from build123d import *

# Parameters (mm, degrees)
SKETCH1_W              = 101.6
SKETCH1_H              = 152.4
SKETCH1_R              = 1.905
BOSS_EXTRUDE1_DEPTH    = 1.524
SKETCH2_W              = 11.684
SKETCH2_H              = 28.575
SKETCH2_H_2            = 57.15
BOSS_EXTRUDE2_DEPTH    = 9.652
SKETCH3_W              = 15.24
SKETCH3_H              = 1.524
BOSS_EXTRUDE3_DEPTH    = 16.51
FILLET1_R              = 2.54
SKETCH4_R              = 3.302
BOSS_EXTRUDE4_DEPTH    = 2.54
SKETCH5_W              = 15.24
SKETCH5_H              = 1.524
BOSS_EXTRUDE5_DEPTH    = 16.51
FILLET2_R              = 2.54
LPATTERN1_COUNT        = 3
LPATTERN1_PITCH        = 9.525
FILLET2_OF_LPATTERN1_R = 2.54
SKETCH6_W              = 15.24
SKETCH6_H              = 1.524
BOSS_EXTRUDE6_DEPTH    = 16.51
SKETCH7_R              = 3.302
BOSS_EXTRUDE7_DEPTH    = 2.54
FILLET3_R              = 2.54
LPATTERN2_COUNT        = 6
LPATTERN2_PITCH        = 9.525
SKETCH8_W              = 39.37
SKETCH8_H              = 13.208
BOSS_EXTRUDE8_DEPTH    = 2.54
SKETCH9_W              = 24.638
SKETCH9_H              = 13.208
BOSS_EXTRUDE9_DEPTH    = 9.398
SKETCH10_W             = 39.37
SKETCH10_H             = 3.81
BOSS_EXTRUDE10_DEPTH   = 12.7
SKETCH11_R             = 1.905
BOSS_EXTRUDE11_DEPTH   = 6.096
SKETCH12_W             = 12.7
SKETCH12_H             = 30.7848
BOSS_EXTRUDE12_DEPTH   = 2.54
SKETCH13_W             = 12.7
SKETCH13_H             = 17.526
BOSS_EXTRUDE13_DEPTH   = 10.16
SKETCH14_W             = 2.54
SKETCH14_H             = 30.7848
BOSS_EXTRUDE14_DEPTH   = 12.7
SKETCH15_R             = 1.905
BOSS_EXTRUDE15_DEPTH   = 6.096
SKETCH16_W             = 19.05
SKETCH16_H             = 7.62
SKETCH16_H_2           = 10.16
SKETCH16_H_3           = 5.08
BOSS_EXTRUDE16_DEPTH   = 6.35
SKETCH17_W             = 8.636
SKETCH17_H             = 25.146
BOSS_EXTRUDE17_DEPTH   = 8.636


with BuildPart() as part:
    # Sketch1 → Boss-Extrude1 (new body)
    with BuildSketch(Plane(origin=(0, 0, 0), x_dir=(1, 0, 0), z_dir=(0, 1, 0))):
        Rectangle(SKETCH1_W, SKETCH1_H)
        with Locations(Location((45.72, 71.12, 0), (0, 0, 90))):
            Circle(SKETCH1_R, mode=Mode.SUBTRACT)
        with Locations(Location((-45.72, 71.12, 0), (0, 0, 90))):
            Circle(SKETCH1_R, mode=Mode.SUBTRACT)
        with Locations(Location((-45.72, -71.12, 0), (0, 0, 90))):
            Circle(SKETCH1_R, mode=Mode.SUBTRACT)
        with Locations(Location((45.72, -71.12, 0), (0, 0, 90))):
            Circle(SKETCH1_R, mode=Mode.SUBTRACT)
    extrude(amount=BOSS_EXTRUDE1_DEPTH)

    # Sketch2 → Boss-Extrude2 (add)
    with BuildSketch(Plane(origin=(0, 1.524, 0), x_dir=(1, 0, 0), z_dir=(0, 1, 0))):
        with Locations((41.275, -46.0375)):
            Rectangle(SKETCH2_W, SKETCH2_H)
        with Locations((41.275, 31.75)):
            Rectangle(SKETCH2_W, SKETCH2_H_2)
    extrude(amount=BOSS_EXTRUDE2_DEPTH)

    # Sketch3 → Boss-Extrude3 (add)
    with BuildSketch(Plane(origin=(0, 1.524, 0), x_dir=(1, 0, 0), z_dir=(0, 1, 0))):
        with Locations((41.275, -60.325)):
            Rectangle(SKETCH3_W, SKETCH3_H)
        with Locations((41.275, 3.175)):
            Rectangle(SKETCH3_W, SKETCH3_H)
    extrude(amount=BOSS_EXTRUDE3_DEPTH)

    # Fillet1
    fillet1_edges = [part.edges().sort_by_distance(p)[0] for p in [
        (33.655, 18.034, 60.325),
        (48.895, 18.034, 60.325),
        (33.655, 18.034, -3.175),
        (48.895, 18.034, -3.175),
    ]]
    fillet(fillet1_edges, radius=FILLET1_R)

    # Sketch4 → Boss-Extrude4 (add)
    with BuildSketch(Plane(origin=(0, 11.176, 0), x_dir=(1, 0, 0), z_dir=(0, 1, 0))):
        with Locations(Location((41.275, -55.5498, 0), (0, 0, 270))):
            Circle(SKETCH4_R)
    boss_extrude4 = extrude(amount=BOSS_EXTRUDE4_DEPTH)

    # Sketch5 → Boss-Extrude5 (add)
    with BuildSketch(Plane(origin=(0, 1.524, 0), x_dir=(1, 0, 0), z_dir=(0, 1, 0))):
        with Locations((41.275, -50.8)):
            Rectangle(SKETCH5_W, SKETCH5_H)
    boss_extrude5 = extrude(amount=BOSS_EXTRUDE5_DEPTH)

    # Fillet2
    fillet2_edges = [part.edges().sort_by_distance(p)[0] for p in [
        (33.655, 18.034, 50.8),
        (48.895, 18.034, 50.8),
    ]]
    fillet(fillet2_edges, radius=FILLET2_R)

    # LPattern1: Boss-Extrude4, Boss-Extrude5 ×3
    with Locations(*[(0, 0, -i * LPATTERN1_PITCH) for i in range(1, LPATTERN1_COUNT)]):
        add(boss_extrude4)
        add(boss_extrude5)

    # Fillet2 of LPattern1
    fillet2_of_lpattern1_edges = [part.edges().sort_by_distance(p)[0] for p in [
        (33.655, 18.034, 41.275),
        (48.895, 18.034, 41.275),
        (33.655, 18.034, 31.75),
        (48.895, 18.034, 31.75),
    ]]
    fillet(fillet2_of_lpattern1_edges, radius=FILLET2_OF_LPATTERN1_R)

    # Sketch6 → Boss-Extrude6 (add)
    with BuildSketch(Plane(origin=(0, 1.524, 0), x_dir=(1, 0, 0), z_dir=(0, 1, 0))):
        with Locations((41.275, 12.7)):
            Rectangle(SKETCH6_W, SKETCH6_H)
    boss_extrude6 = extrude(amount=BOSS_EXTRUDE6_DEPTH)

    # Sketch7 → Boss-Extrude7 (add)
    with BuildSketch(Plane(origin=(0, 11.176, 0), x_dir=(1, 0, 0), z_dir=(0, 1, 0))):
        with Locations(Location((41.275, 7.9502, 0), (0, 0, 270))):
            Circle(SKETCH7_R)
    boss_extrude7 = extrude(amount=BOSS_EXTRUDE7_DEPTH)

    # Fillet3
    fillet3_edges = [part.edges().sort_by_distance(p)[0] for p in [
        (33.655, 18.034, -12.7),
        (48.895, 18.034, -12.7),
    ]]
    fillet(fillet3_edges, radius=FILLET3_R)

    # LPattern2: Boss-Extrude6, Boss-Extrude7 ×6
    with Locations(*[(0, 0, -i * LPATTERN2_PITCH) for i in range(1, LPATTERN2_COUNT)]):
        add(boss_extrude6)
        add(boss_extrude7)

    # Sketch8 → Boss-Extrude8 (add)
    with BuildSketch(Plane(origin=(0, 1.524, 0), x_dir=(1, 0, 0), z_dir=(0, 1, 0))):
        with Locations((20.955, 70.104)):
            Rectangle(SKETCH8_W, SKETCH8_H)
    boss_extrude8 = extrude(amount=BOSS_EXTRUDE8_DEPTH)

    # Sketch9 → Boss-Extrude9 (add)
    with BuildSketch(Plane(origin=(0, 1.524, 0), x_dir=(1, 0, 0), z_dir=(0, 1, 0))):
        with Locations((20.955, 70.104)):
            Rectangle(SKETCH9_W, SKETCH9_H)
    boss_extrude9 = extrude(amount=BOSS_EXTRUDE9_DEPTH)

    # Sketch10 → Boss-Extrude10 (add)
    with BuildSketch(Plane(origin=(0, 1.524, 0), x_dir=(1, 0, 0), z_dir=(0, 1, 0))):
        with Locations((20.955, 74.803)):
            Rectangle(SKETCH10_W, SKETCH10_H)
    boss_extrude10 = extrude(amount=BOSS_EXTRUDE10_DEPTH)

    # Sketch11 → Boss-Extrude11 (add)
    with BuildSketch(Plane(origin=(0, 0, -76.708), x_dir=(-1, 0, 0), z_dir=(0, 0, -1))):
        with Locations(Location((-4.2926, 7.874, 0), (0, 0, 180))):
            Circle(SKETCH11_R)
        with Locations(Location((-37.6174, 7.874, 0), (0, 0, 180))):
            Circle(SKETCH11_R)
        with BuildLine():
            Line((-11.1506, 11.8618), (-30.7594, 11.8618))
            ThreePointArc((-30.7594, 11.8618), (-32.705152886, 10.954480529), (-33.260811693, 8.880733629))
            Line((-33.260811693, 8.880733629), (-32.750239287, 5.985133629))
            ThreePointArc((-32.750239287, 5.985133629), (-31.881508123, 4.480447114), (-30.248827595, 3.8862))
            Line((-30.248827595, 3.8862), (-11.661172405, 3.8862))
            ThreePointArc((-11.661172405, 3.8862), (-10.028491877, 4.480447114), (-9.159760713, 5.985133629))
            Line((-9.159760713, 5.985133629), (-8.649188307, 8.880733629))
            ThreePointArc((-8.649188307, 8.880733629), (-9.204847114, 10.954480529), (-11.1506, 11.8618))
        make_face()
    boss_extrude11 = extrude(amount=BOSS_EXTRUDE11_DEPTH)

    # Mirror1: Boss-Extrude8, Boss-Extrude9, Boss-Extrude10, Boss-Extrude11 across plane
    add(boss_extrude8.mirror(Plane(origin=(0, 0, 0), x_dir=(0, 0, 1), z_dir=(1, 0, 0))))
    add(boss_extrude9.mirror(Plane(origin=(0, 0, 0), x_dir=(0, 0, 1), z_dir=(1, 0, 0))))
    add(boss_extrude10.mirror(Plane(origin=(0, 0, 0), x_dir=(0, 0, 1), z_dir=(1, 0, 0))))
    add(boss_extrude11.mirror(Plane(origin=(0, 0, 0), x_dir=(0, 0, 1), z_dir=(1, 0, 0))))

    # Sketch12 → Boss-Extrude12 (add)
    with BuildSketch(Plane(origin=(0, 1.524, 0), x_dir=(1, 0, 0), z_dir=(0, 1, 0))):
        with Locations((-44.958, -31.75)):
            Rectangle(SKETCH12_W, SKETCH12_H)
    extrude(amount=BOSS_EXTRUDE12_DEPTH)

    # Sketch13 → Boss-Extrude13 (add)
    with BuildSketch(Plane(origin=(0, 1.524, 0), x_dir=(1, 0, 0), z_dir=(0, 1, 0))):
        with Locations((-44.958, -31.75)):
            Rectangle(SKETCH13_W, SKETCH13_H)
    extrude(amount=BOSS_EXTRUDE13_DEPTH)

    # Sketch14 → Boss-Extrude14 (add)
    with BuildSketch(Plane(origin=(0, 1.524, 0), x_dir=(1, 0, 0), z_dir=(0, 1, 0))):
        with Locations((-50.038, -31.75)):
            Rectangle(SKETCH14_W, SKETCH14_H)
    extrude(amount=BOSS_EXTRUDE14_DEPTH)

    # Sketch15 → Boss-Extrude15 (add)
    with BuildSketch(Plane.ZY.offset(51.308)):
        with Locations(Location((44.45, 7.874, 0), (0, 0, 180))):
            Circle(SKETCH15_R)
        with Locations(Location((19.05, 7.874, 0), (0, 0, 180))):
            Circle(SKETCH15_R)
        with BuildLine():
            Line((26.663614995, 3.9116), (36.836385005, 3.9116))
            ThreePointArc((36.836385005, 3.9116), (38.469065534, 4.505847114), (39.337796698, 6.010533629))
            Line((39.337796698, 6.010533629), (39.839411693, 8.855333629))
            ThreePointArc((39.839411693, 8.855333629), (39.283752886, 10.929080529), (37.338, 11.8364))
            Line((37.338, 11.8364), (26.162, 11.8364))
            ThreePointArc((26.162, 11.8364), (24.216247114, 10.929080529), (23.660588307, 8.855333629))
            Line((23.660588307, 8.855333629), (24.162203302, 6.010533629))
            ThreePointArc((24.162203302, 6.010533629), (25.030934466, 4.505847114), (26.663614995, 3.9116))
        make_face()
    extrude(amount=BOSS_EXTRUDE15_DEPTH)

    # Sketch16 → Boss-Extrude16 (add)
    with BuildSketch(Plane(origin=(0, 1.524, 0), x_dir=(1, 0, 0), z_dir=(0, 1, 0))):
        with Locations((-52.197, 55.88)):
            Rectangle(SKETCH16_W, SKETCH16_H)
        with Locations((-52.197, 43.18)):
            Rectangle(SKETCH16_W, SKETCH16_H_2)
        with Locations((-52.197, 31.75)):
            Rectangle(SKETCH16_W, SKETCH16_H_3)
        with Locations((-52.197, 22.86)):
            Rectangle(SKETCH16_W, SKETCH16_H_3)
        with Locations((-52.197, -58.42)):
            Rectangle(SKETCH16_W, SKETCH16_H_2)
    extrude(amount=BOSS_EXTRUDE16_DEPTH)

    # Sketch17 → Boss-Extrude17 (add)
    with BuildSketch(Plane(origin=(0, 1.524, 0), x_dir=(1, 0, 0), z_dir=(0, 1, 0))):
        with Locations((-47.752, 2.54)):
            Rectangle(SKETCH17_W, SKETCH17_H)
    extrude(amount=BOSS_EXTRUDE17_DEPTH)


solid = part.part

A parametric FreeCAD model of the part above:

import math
import FreeCAD as App
import Part
import Sketcher
from FreeCAD import Vector
Q = App.Units.Quantity


def edges_at(feature, points):
    """Names of the edges that pass closest to the given points."""
    edges = feature.Shape.Edges
    near = lambda p: min(range(len(edges)), key=lambda i: edges[i].distToShape(Part.Vertex(*p))[0])
    return sorted({f"Edge{near(p) + 1}" for p in points})


def add_polygon(sketch, points):
    """Adds a closed chain of lines whose ends are joined by coincident constraints."""
    first, n = sketch.GeometryCount, len(points)
    for a, b in zip(points, points[1:] + points[:1]):
        sketch.addGeometry(Part.LineSegment(App.Vector(*a, 0), App.Vector(*b, 0)), False)
    for i in range(n):
        sketch.addConstraint(Sketcher.Constraint("Coincident", first + i, 2, first + (i + 1) % n, 1))

doc = App.newDocument("Part")
body = doc.addObject("PartDesign::Body", "Body")

# Sketch on XZ plane
sketch1 = body.newObject("Sketcher::SketchObject", "Sketch")
sketch1.AttachmentSupport = (doc.getObject("XZ_Plane"), [""])
sketch1.MapMode = "FlatFace"
add_polygon(sketch1, [(-50.8, -76.2), (-50.8, 76.2), (50.8, 76.2), (50.8, -76.2)])  # lines 0-3
sketch1.addGeometry(Part.Circle(Vector(-45.72, 71.12, 0), Vector(0, 0, 1), 1.905), False)  # 4
sketch1.addGeometry(Part.Circle(Vector(45.72, 71.12, 0), Vector(0, 0, 1), 1.905), False)  # 5
sketch1.addGeometry(Part.Circle(Vector(-45.72, -71.12, 0), Vector(0, 0, 1), 1.905), False)  # 6
sketch1.addGeometry(Part.Circle(Vector(45.72, -71.12, 0), Vector(0, 0, 1), 1.905), False)  # 7
sketch1.addConstraint(Sketcher.Constraint("Vertical", 0))
sketch1.addConstraint(Sketcher.Constraint("Horizontal", 1))
sketch1.addConstraint(Sketcher.Constraint("Vertical", 2))
sketch1.addConstraint(Sketcher.Constraint("Horizontal", 3))
sketch1.addConstraint(Sketcher.Constraint("Equal", 4, 5))
sketch1.addConstraint(Sketcher.Constraint("Equal", 5, 6))
sketch1.addConstraint(Sketcher.Constraint("Equal", 6, 7))
sketch1.addConstraint(Sketcher.Constraint("Symmetric", 5, 3, 6, 3, -1, 1))
sketch1.addConstraint(Sketcher.Constraint("Symmetric", 4, 3, 7, 3, -1, 1))
sketch1.addConstraint(Sketcher.Constraint("Symmetric", 0, 2, 2, 2, -1, 1))
sketch1.addConstraint(Sketcher.Constraint("Symmetric", 4, 3, 5, 3, -2))
sketch1.addConstraint(Sketcher.Constraint("Diameter", 4, Q("0.15 in")))
sketch1.addConstraint(Sketcher.Constraint("DistanceX", 1, 1, 1, 2, Q("4 in")))
sketch1.addConstraint(Sketcher.Constraint("DistanceY", 0, 1, 0, 2, Q("6 in")))
sketch1.addConstraint(Sketcher.Constraint("DistanceX", 4, 3, -1, 1, Q("1.8 in")))
sketch1.addConstraint(Sketcher.Constraint("DistanceY", -1, 1, 4, 3, Q("2.8 in")))
pad1 = body.newObject("PartDesign::Pad", "Pad")
pad1.Profile = sketch1
pad1.Length = Q("0.06 in")
pad1.Reversed = True

# Sketch on XZ plane
sketch2 = body.newObject("Sketcher::SketchObject", "Sketch001")
sketch2.AttachmentSupport = (doc.getObject("XZ_Plane"), [""])
sketch2.MapMode = "FlatFace"
sketch2.AttachmentOffset = App.Placement(Vector(0, 0, -0.06 * 25.4), App.Rotation())
add_polygon(sketch2, [(35.433, 31.75), (35.433, 60.325), (47.117, 60.325), (47.117, 31.75)])  # lines 0-3
add_polygon(sketch2, [(35.433, -60.325), (35.433, -3.175), (47.117, -3.175), (47.117, -60.325)])  # lines 4-7
sketch2.addConstraint(Sketcher.Constraint("Vertical", 0))
sketch2.addConstraint(Sketcher.Constraint("Horizontal", 1))
sketch2.addConstraint(Sketcher.Constraint("Vertical", 2))
sketch2.addConstraint(Sketcher.Constraint("Horizontal", 3))
sketch2.addConstraint(Sketcher.Constraint("Vertical", 4))
sketch2.addConstraint(Sketcher.Constraint("Horizontal", 5))
sketch2.addConstraint(Sketcher.Constraint("Vertical", 6))
sketch2.addConstraint(Sketcher.Constraint("Horizontal", 7))
sketch2.addConstraint(Sketcher.Constraint("Symmetric", 1, 2, 6, 2, -1))
sketch2.addConstraint(Sketcher.Constraint("Vertical", 3, 2, 4, 2))
sketch2.addConstraint(Sketcher.Constraint("DistanceX", 1, 1, 1, 2, Q("0.46 in")))
sketch2.addConstraint(Sketcher.Constraint("DistanceY", 4, 1, 4, 2, Q("2.25 in")))
sketch2.addConstraint(Sketcher.Constraint("DistanceY", 4, 2, 0, 2, Q("2.5 in")))
sketch2.addConstraint(Sketcher.Constraint("DistanceY", 0, 1, 0, 2, Q("1.125 in")))
sketch2.addConstraint(Sketcher.Constraint("DistanceX", -1, 1, 0, 2, Q("1.395 in")))
pad2 = body.newObject("PartDesign::Pad", "Pad001")
pad2.Profile = sketch2
pad2.Length = Q("0.38 in")
pad2.Reversed = True

# Sketch on XZ plane
sketch3 = body.newObject("Sketcher::SketchObject", "Sketch002")
sketch3.AttachmentSupport = (doc.getObject("XZ_Plane"), [""])
sketch3.MapMode = "FlatFace"
sketch3.AttachmentOffset = App.Placement(Vector(0, 0, -0.06 * 25.4), App.Rotation())
add_polygon(sketch3, [(33.655, 59.563), (33.655, 61.087), (48.895, 61.087), (48.895, 59.563)])  # lines 0-3
add_polygon(sketch3, [(33.655, -3.937), (33.655, -2.413), (48.895, -2.413), (48.895, -3.937)])  # lines 4-7
sketch3.addConstraint(Sketcher.Constraint("Vertical", 0))
sketch3.addConstraint(Sketcher.Constraint("Horizontal", 1))
sketch3.addConstraint(Sketcher.Constraint("Vertical", 2))
sketch3.addConstraint(Sketcher.Constraint("Horizontal", 3))
sketch3.addConstraint(Sketcher.Constraint("Vertical", 4))
sketch3.addConstraint(Sketcher.Constraint("Horizontal", 5))
sketch3.addConstraint(Sketcher.Constraint("Vertical", 6))
sketch3.addConstraint(Sketcher.Constraint("Horizontal", 7))
sketch3.addConstraint(Sketcher.Constraint("Vertical", 3, 2, 4, 2))
sketch3.addConstraint(Sketcher.Constraint("Vertical", 2, 2, 5, 2))
sketch3.addConstraint(Sketcher.Constraint("Equal", 2, 4))
sketch3.addConstraint(Sketcher.Constraint("DistanceX", 1, 1, 1, 2, Q("0.6 in")))
sketch3.addConstraint(Sketcher.Constraint("DistanceY", 0, 1, 0, 2, Q("0.06 in")))
sketch3.addConstraint(Sketcher.Constraint("DistanceY", 4, 2, 0, 2, Q("2.5 in")))
sketch3.addConstraint(Sketcher.Constraint("DistanceX", -1, 1, 0, 2, Q("1.325 in")))
sketch3.addConstraint(Sketcher.Constraint("DistanceY", -1, 1, 0, 2, Q("2.405 in")))
pad3 = body.newObject("PartDesign::Pad", "Pad002")
pad3.Profile = sketch3
pad3.Length = Q("0.65 in")
pad3.Reversed = True
doc.recompute()

fillet = body.newObject("PartDesign::Fillet", "Fillet")
fillet.Base = (pad3, edges_at(pad3, [
    (33.655, 18.034, 60.325),
    (48.895, 18.034, 60.325),
    (33.655, 18.034, -3.175),
    (48.895, 18.034, -3.175),
]))
fillet.Radius = Q("0.1 in")

# Sketch on XZ plane
sketch4 = body.newObject("Sketcher::SketchObject", "Sketch003")
sketch4.AttachmentSupport = (doc.getObject("XZ_Plane"), [""])
sketch4.MapMode = "FlatFace"
sketch4.AttachmentOffset = App.Placement(Vector(0, 0, -0.44 * 25.4), App.Rotation())
sketch4.addGeometry(Part.Circle(Vector(41.275, 55.5498, 0), Vector(0, 0, 1), 3.302), False)
sketch4.addConstraint(Sketcher.Constraint("Diameter", 0, Q("0.26 in")))
sketch4.addConstraint(Sketcher.Constraint("DistanceX", -1, 1, 0, 3, Q("1.625 in")))
sketch4.addConstraint(Sketcher.Constraint("DistanceY", -1, 1, 0, 3, Q("2.187 in")))
pad4 = body.newObject("PartDesign::Pad", "Pad003")
pad4.Profile = sketch4
pad4.Length = Q("0.1 in")
pad4.Reversed = True

# Sketch on XZ plane
sketch5 = body.newObject("Sketcher::SketchObject", "Sketch004")
sketch5.AttachmentSupport = (doc.getObject("XZ_Plane"), [""])
sketch5.MapMode = "FlatFace"
sketch5.AttachmentOffset = App.Placement(Vector(0, 0, -0.06 * 25.4), App.Rotation())
add_polygon(sketch5, [(33.655, 50.038), (33.655, 51.562), (48.895, 51.562), (48.895, 50.038)])  # lines 0-3
sketch5.addConstraint(Sketcher.Constraint("Vertical", 0))
sketch5.addConstraint(Sketcher.Constraint("Horizontal", 1))
sketch5.addConstraint(Sketcher.Constraint("Vertical", 2))
sketch5.addConstraint(Sketcher.Constraint("Horizontal", 3))
sketch5.addConstraint(Sketcher.Constraint("DistanceX", 1, 1, 1, 2, Q("0.6 in")))
sketch5.addConstraint(Sketcher.Constraint("DistanceY", 0, 1, 0, 2, Q("0.06 in")))
sketch5.addConstraint(Sketcher.Constraint("DistanceY", -1, 1, 0, 2, Q("2.03 in")))
sketch5.addConstraint(Sketcher.Constraint("DistanceX", -1, 1, 0, 2, Q("1.325 in")))
pad5 = body.newObject("PartDesign::Pad", "Pad004")
pad5.Profile = sketch5
pad5.Length = Q("0.65 in")
pad5.Reversed = True
doc.recompute()

fillet2 = body.newObject("PartDesign::Fillet", "Fillet001")
fillet2.Base = (pad5, edges_at(pad5, [(33.655, 18.034, 50.8), (48.895, 18.034, 50.8)]))
fillet2.Radius = Q("0.1 in")
doc.recompute()

linearpattern = body.newObject("PartDesign::LinearPattern", "LinearPattern")
linearpattern.Originals = [pad4, pad5]
linearpattern.Direction = (doc.getObject("Z_Axis"), [""])
linearpattern.Mode = "offset"
linearpattern.Offset = Q("0.375 in")
linearpattern.Occurrences = 3
linearpattern.Reversed = True
body.Tip = linearpattern
doc.recompute()

fillet3 = body.newObject("PartDesign::Fillet", "Fillet002")
fillet3.Base = (linearpattern, edges_at(linearpattern, [
    (33.655, 18.034, 41.275),
    (48.895, 18.034, 41.275),
    (33.655, 18.034, 31.75),
    (48.895, 18.034, 31.75),
]))
fillet3.Radius = Q("0.1 in")

# Sketch on XZ plane
sketch6 = body.newObject("Sketcher::SketchObject", "Sketch005")
sketch6.AttachmentSupport = (doc.getObject("XZ_Plane"), [""])
sketch6.MapMode = "FlatFace"
sketch6.AttachmentOffset = App.Placement(Vector(0, 0, -0.06 * 25.4), App.Rotation())
add_polygon(sketch6, [(33.655, -13.462), (33.655, -11.938), (48.895, -11.938), (48.895, -13.462)])  # lines 0-3
sketch6.addConstraint(Sketcher.Constraint("Vertical", 0))
sketch6.addConstraint(Sketcher.Constraint("Horizontal", 1))
sketch6.addConstraint(Sketcher.Constraint("Vertical", 2))
sketch6.addConstraint(Sketcher.Constraint("Horizontal", 3))
sketch6.addConstraint(Sketcher.Constraint("DistanceX", 1, 1, 1, 2, Q("0.6 in")))
sketch6.addConstraint(Sketcher.Constraint("DistanceY", 0, 1, 0, 2, Q("0.06 in")))
sketch6.addConstraint(Sketcher.Constraint("DistanceY", 0, 2, -1, 1, Q("0.47 in")))
sketch6.addConstraint(Sketcher.Constraint("DistanceX", -1, 1, 0, 2, Q("1.325 in")))
pad6 = body.newObject("PartDesign::Pad", "Pad005")
pad6.Profile = sketch6
pad6.Length = Q("0.65 in")
pad6.Reversed = True

# Sketch on XZ plane
sketch7 = body.newObject("Sketcher::SketchObject", "Sketch006")
sketch7.AttachmentSupport = (doc.getObject("XZ_Plane"), [""])
sketch7.MapMode = "FlatFace"
sketch7.AttachmentOffset = App.Placement(Vector(0, 0, -0.44 * 25.4), App.Rotation())
sketch7.addGeometry(Part.Circle(Vector(41.275, -7.9502, 0), Vector(0, 0, 1), 3.302), False)
sketch7.addConstraint(Sketcher.Constraint("Diameter", 0, Q("0.26 in")))
sketch7.addConstraint(Sketcher.Constraint("DistanceX", -1, 1, 0, 3, Q("1.625 in")))
sketch7.addConstraint(Sketcher.Constraint("DistanceY", 0, 3, -1, 1, Q("0.313 in")))
pad7 = body.newObject("PartDesign::Pad", "Pad006")
pad7.Profile = sketch7
pad7.Length = Q("0.1 in")
pad7.Reversed = True
doc.recompute()

fillet4 = body.newObject("PartDesign::Fillet", "Fillet003")
fillet4.Base = (pad7, edges_at(pad7, [(33.655, 18.034, -12.7), (48.895, 18.034, -12.7)]))
fillet4.Radius = Q("0.1 in")
doc.recompute()

linearpattern2 = body.newObject("PartDesign::LinearPattern", "LinearPattern001")
linearpattern2.Originals = [pad6, pad7]
linearpattern2.Direction = (doc.getObject("Z_Axis"), [""])
linearpattern2.Mode = "offset"
linearpattern2.Offset = Q("0.375 in")
linearpattern2.Occurrences = 6
linearpattern2.Reversed = True
body.Tip = linearpattern2

# Sketch on XZ plane
sketch8 = body.newObject("Sketcher::SketchObject", "Sketch007")
sketch8.AttachmentSupport = (doc.getObject("XZ_Plane"), [""])
sketch8.MapMode = "FlatFace"
sketch8.AttachmentOffset = App.Placement(Vector(0, 0, -0.06 * 25.4), App.Rotation())
add_polygon(sketch8, [(1.27, -76.708), (1.27, -63.5), (40.64, -63.5), (40.64, -76.708)])  # lines 0-3
sketch8.addConstraint(Sketcher.Constraint("Vertical", 0))
sketch8.addConstraint(Sketcher.Constraint("Horizontal", 1))
sketch8.addConstraint(Sketcher.Constraint("Vertical", 2))
sketch8.addConstraint(Sketcher.Constraint("Horizontal", 3))
sketch8.addConstraint(Sketcher.Constraint("DistanceX", 1, 1, 1, 2, Q("1.55 in")))
sketch8.addConstraint(Sketcher.Constraint("DistanceY", 0, 1, 0, 2, Q("0.52 in")))
sketch8.addConstraint(Sketcher.Constraint("DistanceY", 0, 2, -1, 1, Q("2.5 in")))
sketch8.addConstraint(Sketcher.Constraint("DistanceX", -1, 1, 1, 2, Q("1.6 in")))
pad8 = body.newObject("PartDesign::Pad", "Pad007")
pad8.Profile = sketch8
pad8.Length = Q("0.1 in")
pad8.Reversed = True

# Sketch on XZ plane
sketch9 = body.newObject("Sketcher::SketchObject", "Sketch008")
sketch9.AttachmentSupport = (doc.getObject("XZ_Plane"), [""])
sketch9.MapMode = "FlatFace"
sketch9.AttachmentOffset = App.Placement(Vector(0, 0, -0.06 * 25.4), App.Rotation())
add_polygon(sketch9, [(8.636, -76.708), (8.636, -63.5), (33.274, -63.5), (33.274, -76.708)])  # lines 0-3
sketch9.addConstraint(Sketcher.Constraint("Vertical", 0))
sketch9.addConstraint(Sketcher.Constraint("Horizontal", 1))
sketch9.addConstraint(Sketcher.Constraint("Vertical", 2))
sketch9.addConstraint(Sketcher.Constraint("Horizontal", 3))
sketch9.addConstraint(Sketcher.Constraint("DistanceX", 1, 1, 1, 2, Q("0.97 in")))
sketch9.addConstraint(Sketcher.Constraint("DistanceY", 0, 1, 0, 2, Q("0.52 in")))
sketch9.addConstraint(Sketcher.Constraint("DistanceY", 0, 2, -1, 1, Q("2.5 in")))
sketch9.addConstraint(Sketcher.Constraint("DistanceX", -1, 1, 0, 2, Q("0.34 in")))
pad9 = body.newObject("PartDesign::Pad", "Pad008")
pad9.Profile = sketch9
pad9.Length = Q("0.37 in")
pad9.Reversed = True

# Sketch on XZ plane
sketch10 = body.newObject("Sketcher::SketchObject", "Sketch009")
sketch10.AttachmentSupport = (doc.getObject("XZ_Plane"), [""])
sketch10.MapMode = "FlatFace"
sketch10.AttachmentOffset = App.Placement(Vector(0, 0, -0.06 * 25.4), App.Rotation())
add_polygon(sketch10, [(1.27, -76.708), (1.27, -72.898), (40.64, -72.898), (40.64, -76.708)])  # lines 0-3
sketch10.addConstraint(Sketcher.Constraint("Vertical", 0))
sketch10.addConstraint(Sketcher.Constraint("Horizontal", 1))
sketch10.addConstraint(Sketcher.Constraint("Vertical", 2))
sketch10.addConstraint(Sketcher.Constraint("Horizontal", 3))
sketch10.addConstraint(Sketcher.Constraint("DistanceX", 1, 1, 1, 2, Q("1.55 in")))
sketch10.addConstraint(Sketcher.Constraint("DistanceY", 0, 1, 0, 2, Q("0.15 in")))
sketch10.addConstraint(Sketcher.Constraint("DistanceX", -1, 1, 1, 2, Q("1.6 in")))
sketch10.addConstraint(Sketcher.Constraint("DistanceY", 0, 2, -1, 1, Q("2.87 in")))
pad10 = body.newObject("PartDesign::Pad", "Pad009")
pad10.Profile = sketch10
pad10.Length = Q("0.5 in")
pad10.Reversed = True

# Sketch on XY plane
sketch11 = body.newObject("Sketcher::SketchObject", "Sketch010")
sketch11.AttachmentSupport = (doc.getObject("XY_Plane"), [""])
sketch11.MapMode = "FlatFace"
sketch11.AttachmentOffset = App.Placement(Vector(0, 0, -3.02 * 25.4), App.Rotation())
sketch11.addGeometry(Part.Circle(Vector(4.2926, 7.874, 0), Vector(0, 0, 1), 1.905), False)
sketch11.addGeometry(Part.Circle(Vector(37.6174, 7.874, 0), Vector(0, 0, 1), 1.905), False)
sketch11.addGeometry(Part.LineSegment(Vector(11.1506, 11.8618, 0), Vector(30.7594, 11.8618, 0)), False)
sketch11.addGeometry(Part.ArcOfCircle(Part.Circle(Vector(30.7594, 9.3218, 0), Vector(0, 0, 1), 2.54), math.radians(-10), math.radians(90)), False)
sketch11.addGeometry(Part.LineSegment(Vector(33.260812, 8.880734, 0), Vector(32.750239, 5.985134, 0)), False)
sketch11.addGeometry(Part.ArcOfCircle(Part.Circle(Vector(30.248828, 6.4262, 0), Vector(0, 0, 1), 2.54), math.radians(-90), math.radians(-10)), False)
sketch11.addGeometry(Part.LineSegment(Vector(30.248828, 3.8862, 0), Vector(11.661172, 3.8862, 0)), False)
sketch11.addGeometry(Part.ArcOfCircle(Part.Circle(Vector(11.661172, 6.4262, 0), Vector(0, 0, 1), 2.54), math.radians(-170), math.radians(-90)), False)
sketch11.addGeometry(Part.LineSegment(Vector(9.159761, 5.985134, 0), Vector(8.649188, 8.880734, 0)), False)
sketch11.addGeometry(Part.ArcOfCircle(Part.Circle(Vector(11.1506, 9.3218, 0), Vector(0, 0, 1), 2.54), math.radians(90), math.radians(190)), False)
sketch11.addConstraint(Sketcher.Constraint("Tangent", 2, 2, 3, 2))
sketch11.addConstraint(Sketcher.Constraint("Tangent", 3, 1, 4, 1))
sketch11.addConstraint(Sketcher.Constraint("Tangent", 4, 2, 5, 2))
sketch11.addConstraint(Sketcher.Constraint("Tangent", 5, 1, 6, 1))
sketch11.addConstraint(Sketcher.Constraint("Tangent", 6, 2, 7, 2))
sketch11.addConstraint(Sketcher.Constraint("Tangent", 7, 1, 8, 1))
sketch11.addConstraint(Sketcher.Constraint("Tangent", 8, 2, 9, 2))
sketch11.addConstraint(Sketcher.Constraint("Tangent", 9, 1, 2, 1))
sketch11.addConstraint(Sketcher.Constraint("Horizontal", 2))
sketch11.addConstraint(Sketcher.Constraint("Horizontal", 6))
sketch11.addConstraint(Sketcher.Constraint("Equal", 0, 1))
sketch11.addConstraint(Sketcher.Constraint("Equal", 3, 5))
sketch11.addConstraint(Sketcher.Constraint("Equal", 5, 7))
sketch11.addConstraint(Sketcher.Constraint("Equal", 7, 9))
sketch11.addConstraint(Sketcher.Constraint("Horizontal", 0, 3, 1, 3))
sketch11.addConstraint(Sketcher.Constraint("Horizontal", 4, 2, 7, 1))
sketch11.addConstraint(Sketcher.Constraint("Radius", 3, Q("0.1 in")))
sketch11.addConstraint(Sketcher.Constraint("Diameter", 0, Q("0.15 in")))
sketch11.addConstraint(Sketcher.Constraint("Angle", 4, Q("-100 deg")))
sketch11.addConstraint(Sketcher.Constraint("DistanceX", 2, 1, 2, 2, Q("0.772 in")))
sketch11.addConstraint(Sketcher.Constraint("DistanceY", -1, 1, 0, 3, Q("0.31 in")))
sketch11.addConstraint(Sketcher.Constraint("DistanceX", 3, 3, 1, 3, Q("0.27 in")))
sketch11.addConstraint(Sketcher.Constraint("DistanceX", 0, 3, 9, 3, Q("0.27 in")))
sketch11.addConstraint(Sketcher.Constraint("DistanceX", -1, 1, 0, 3, Q("0.169 in")))
sketch11.addConstraint(Sketcher.Constraint("DistanceY", -1, 1, 3, 3, Q("0.367 in")))
sketch11.addConstraint(Sketcher.Constraint("DistanceY", -1, 1, 5, 3, Q("0.253 in")))
pad11 = body.newObject("PartDesign::Pad", "Pad010")
pad11.Profile = sketch11
pad11.Length = Q("0.24 in")
pad11.Reversed = True
doc.recompute()

mirrored = body.newObject("PartDesign::Mirrored", "Mirrored")
mirrored.Originals = [pad8, pad9, pad10, pad11]
mirrored.MirrorPlane = (doc.getObject("YZ_Plane"), [""])
body.Tip = mirrored

# Sketch on XZ plane
sketch12 = body.newObject("Sketcher::SketchObject", "Sketch011")
sketch12.AttachmentSupport = (doc.getObject("XZ_Plane"), [""])
sketch12.MapMode = "FlatFace"
sketch12.AttachmentOffset = App.Placement(Vector(0, 0, -0.06 * 25.4), App.Rotation())
add_polygon(sketch12, [(-51.308, 16.3576), (-51.308, 47.1424), (-38.608, 47.1424), (-38.608, 16.3576)])  # lines 0-3
sketch12.addConstraint(Sketcher.Constraint("Vertical", 0))
sketch12.addConstraint(Sketcher.Constraint("Horizontal", 1))
sketch12.addConstraint(Sketcher.Constraint("Vertical", 2))
sketch12.addConstraint(Sketcher.Constraint("Horizontal", 3))
sketch12.addConstraint(Sketcher.Constraint("DistanceX", 1, 1, 1, 2, Q("0.5 in")))
sketch12.addConstraint(Sketcher.Constraint("DistanceY", 0, 1, 0, 2, Q("1.212 in")))
sketch12.addConstraint(Sketcher.Constraint("DistanceX", 0, 2, -1, 1, Q("2.02 in")))
sketch12.addConstraint(Sketcher.Constraint("DistanceY", -1, 1, 0, 2, Q("1.856 in")))
pad12 = body.newObject("PartDesign::Pad", "Pad011")
pad12.Profile = sketch12
pad12.Length = Q("0.1 in")
pad12.Reversed = True

# Sketch on XZ plane
sketch13 = body.newObject("Sketcher::SketchObject", "Sketch012")
sketch13.AttachmentSupport = (doc.getObject("XZ_Plane"), [""])
sketch13.MapMode = "FlatFace"
sketch13.AttachmentOffset = App.Placement(Vector(0, 0, -0.06 * 25.4), App.Rotation())
add_polygon(sketch13, [(-51.308, 22.987), (-51.308, 40.513), (-38.608, 40.513), (-38.608, 22.987)])  # lines 0-3
sketch13.addConstraint(Sketcher.Constraint("Vertical", 0))
sketch13.addConstraint(Sketcher.Constraint("Horizontal", 1))
sketch13.addConstraint(Sketcher.Constraint("Vertical", 2))
sketch13.addConstraint(Sketcher.Constraint("Horizontal", 3))
sketch13.addConstraint(Sketcher.Constraint("DistanceX", 1, 1, 1, 2, Q("0.5 in")))
sketch13.addConstraint(Sketcher.Constraint("DistanceY", 0, 1, 0, 2, Q("0.69 in")))
sketch13.addConstraint(Sketcher.Constraint("DistanceX", 0, 2, -1, 1, Q("2.02 in")))
sketch13.addConstraint(Sketcher.Constraint("DistanceY", -1, 1, 0, 2, Q("1.595 in")))
pad13 = body.newObject("PartDesign::Pad", "Pad012")
pad13.Profile = sketch13
pad13.Length = Q("0.4 in")
pad13.Reversed = True

# Sketch on XZ plane
sketch14 = body.newObject("Sketcher::SketchObject", "Sketch013")
sketch14.AttachmentSupport = (doc.getObject("XZ_Plane"), [""])
sketch14.MapMode = "FlatFace"
sketch14.AttachmentOffset = App.Placement(Vector(0, 0, -0.06 * 25.4), App.Rotation())
add_polygon(sketch14, [(-51.308, 16.3576), (-51.308, 47.1424), (-48.768, 47.1424), (-48.768, 16.3576)])  # lines 0-3
sketch14.addConstraint(Sketcher.Constraint("Vertical", 0))
sketch14.addConstraint(Sketcher.Constraint("Horizontal", 1))
sketch14.addConstraint(Sketcher.Constraint("Vertical", 2))
sketch14.addConstraint(Sketcher.Constraint("Horizontal", 3))
sketch14.addConstraint(Sketcher.Constraint("DistanceX", 1, 1, 1, 2, Q("0.1 in")))
sketch14.addConstraint(Sketcher.Constraint("DistanceY", 0, 1, 0, 2, Q("1.212 in")))
sketch14.addConstraint(Sketcher.Constraint("DistanceX", 0, 2, -1, 1, Q("2.02 in")))
sketch14.addConstraint(Sketcher.Constraint("DistanceY", -1, 1, 0, 2, Q("1.856 in")))
pad14 = body.newObject("PartDesign::Pad", "Pad013")
pad14.Profile = sketch14
pad14.Length = Q("0.5 in")
pad14.Reversed = True

# Sketch on YZ plane
sketch15 = body.newObject("Sketcher::SketchObject", "Sketch014")
sketch15.AttachmentSupport = (doc.getObject("YZ_Plane"), [""])
sketch15.MapMode = "FlatFace"
sketch15.AttachmentOffset = App.Placement(Vector(0, 0, -2.02 * 25.4), App.Rotation())
sketch15.addGeometry(Part.Circle(Vector(7.874, 44.45, 0), Vector(0, 0, 1), 1.905), False)
sketch15.addGeometry(Part.Circle(Vector(7.874, 19.05, 0), Vector(0, 0, 1), 1.905), False)
sketch15.addGeometry(Part.LineSegment(Vector(3.9116, 26.663615, 0), Vector(3.9116, 36.836385, 0)), False)
sketch15.addGeometry(Part.ArcOfCircle(Part.Circle(Vector(6.4516, 36.836385, 0), Vector(0, 0, 1), 2.54), math.radians(100), math.radians(180)), False)
sketch15.addGeometry(Part.LineSegment(Vector(6.010534, 39.337797, 0), Vector(8.855334, 39.839412, 0)), False)
sketch15.addGeometry(Part.ArcOfCircle(Part.Circle(Vector(9.2964, 37.338, 0), Vector(0, 0, 1), 2.54), math.radians(0), math.radians(100)), False)
sketch15.addGeometry(Part.LineSegment(Vector(11.8364, 37.338, 0), Vector(11.8364, 26.162, 0)), False)
sketch15.addGeometry(Part.ArcOfCircle(Part.Circle(Vector(9.2964, 26.162, 0), Vector(0, 0, 1), 2.54), math.radians(-100), math.radians(0)), False)
sketch15.addGeometry(Part.LineSegment(Vector(8.855334, 23.660588, 0), Vector(6.010534, 24.162203, 0)), False)
sketch15.addGeometry(Part.ArcOfCircle(Part.Circle(Vector(6.4516, 26.663615, 0), Vector(0, 0, 1), 2.54), math.radians(180), math.radians(260)), False)
sketch15.addConstraint(Sketcher.Constraint("Tangent", 2, 2, 3, 2))
sketch15.addConstraint(Sketcher.Constraint("Tangent", 3, 1, 4, 1))
sketch15.addConstraint(Sketcher.Constraint("Tangent", 4, 2, 5, 2))
sketch15.addConstraint(Sketcher.Constraint("Tangent", 5, 1, 6, 1))
sketch15.addConstraint(Sketcher.Constraint("Tangent", 6, 2, 7, 2))
sketch15.addConstraint(Sketcher.Constraint("Tangent", 7, 1, 8, 1))
sketch15.addConstraint(Sketcher.Constraint("Tangent", 8, 2, 9, 2))
sketch15.addConstraint(Sketcher.Constraint("Tangent", 9, 1, 2, 1))
sketch15.addConstraint(Sketcher.Constraint("Vertical", 2))
sketch15.addConstraint(Sketcher.Constraint("Vertical", 6))
sketch15.addConstraint(Sketcher.Constraint("Equal", 0, 1))
sketch15.addConstraint(Sketcher.Constraint("Equal", 3, 5))
sketch15.addConstraint(Sketcher.Constraint("Equal", 5, 7))
sketch15.addConstraint(Sketcher.Constraint("Equal", 7, 9))
sketch15.addConstraint(Sketcher.Constraint("Vertical", 0, 3, 1, 3))
sketch15.addConstraint(Sketcher.Constraint("Vertical", 4, 2, 7, 1))
sketch15.addConstraint(Sketcher.Constraint("Radius", 3, Q("0.1 in")))
sketch15.addConstraint(Sketcher.Constraint("Diameter", 0, Q("0.15 in")))
sketch15.addConstraint(Sketcher.Constraint("Angle", 4, Q("10 deg")))
sketch15.addConstraint(Sketcher.Constraint("DistanceY", 1, 3, 0, 3, Q("1 in")))
sketch15.addConstraint(Sketcher.Constraint("DistanceY", 6, 2, 6, 1, Q("0.44 in")))
sketch15.addConstraint(Sketcher.Constraint("DistanceX", -1, 1, 0, 3, Q("0.31 in")))
sketch15.addConstraint(Sketcher.Constraint("DistanceY", -1, 1, 0, 3, Q("1.75 in")))
sketch15.addConstraint(Sketcher.Constraint("DistanceY", -1, 1, 5, 3, Q("1.47 in")))
sketch15.addConstraint(Sketcher.Constraint("DistanceX", -1, 1, 3, 3, Q("0.254 in")))
sketch15.addConstraint(Sketcher.Constraint("DistanceX", -1, 1, 5, 3, Q("0.366 in")))
pad15 = body.newObject("PartDesign::Pad", "Pad014")
pad15.Profile = sketch15
pad15.Length = Q("0.24 in")
pad15.Reversed = True

# Sketch on XZ plane
sketch16 = body.newObject("Sketcher::SketchObject", "Sketch015")
sketch16.AttachmentSupport = (doc.getObject("XZ_Plane"), [""])
sketch16.MapMode = "FlatFace"
sketch16.AttachmentOffset = App.Placement(Vector(0, 0, -0.06 * 25.4), App.Rotation())
add_polygon(sketch16, [(-61.722, -59.69), (-61.722, -52.07), (-42.672, -52.07), (-42.672, -59.69)])  # lines 0-3
add_polygon(sketch16, [(-61.722, -48.26), (-61.722, -38.1), (-42.672, -38.1), (-42.672, -48.26)])  # lines 4-7
add_polygon(sketch16, [(-61.722, -34.29), (-61.722, -29.21), (-42.672, -29.21), (-42.672, -34.29)])  # lines 8-11
add_polygon(sketch16, [(-61.722, -25.4), (-61.722, -20.32), (-42.672, -20.32), (-42.672, -25.4)])  # lines 12-15
add_polygon(sketch16, [(-61.722, 53.34), (-61.722, 63.5), (-42.672, 63.5), (-42.672, 53.34)])  # lines 16-19
sketch16.addConstraint(Sketcher.Constraint("Vertical", 0))
sketch16.addConstraint(Sketcher.Constraint("Horizontal", 1))
sketch16.addConstraint(Sketcher.Constraint("Vertical", 2))
sketch16.addConstraint(Sketcher.Constraint("Horizontal", 3))
sketch16.addConstraint(Sketcher.Constraint("Vertical", 4))
sketch16.addConstraint(Sketcher.Constraint("Horizontal", 5))
sketch16.addConstraint(Sketcher.Constraint("Vertical", 6))
sketch16.addConstraint(Sketcher.Constraint("Horizontal", 7))
sketch16.addConstraint(Sketcher.Constraint("Vertical", 8))
sketch16.addConstraint(Sketcher.Constraint("Horizontal", 9))
sketch16.addConstraint(Sketcher.Constraint("Vertical", 10))
sketch16.addConstraint(Sketcher.Constraint("Horizontal", 11))
sketch16.addConstraint(Sketcher.Constraint("Vertical", 12))
sketch16.addConstraint(Sketcher.Constraint("Horizontal", 13))
sketch16.addConstraint(Sketcher.Constraint("Vertical", 14))
sketch16.addConstraint(Sketcher.Constraint("Horizontal", 15))
sketch16.addConstraint(Sketcher.Constraint("Vertical", 16))
sketch16.addConstraint(Sketcher.Constraint("Horizontal", 17))
sketch16.addConstraint(Sketcher.Constraint("Vertical", 18))
sketch16.addConstraint(Sketcher.Constraint("Horizontal", 19))
sketch16.addConstraint(Sketcher.Constraint("Vertical", 3, 2, 4, 2))
sketch16.addConstraint(Sketcher.Constraint("Vertical", 2, 2, 5, 2))
sketch16.addConstraint(Sketcher.Constraint("Vertical", 7, 2, 8, 2))
sketch16.addConstraint(Sketcher.Constraint("Vertical", 6, 2, 9, 2))
sketch16.addConstraint(Sketcher.Constraint("Vertical", 11, 2, 12, 2))
sketch16.addConstraint(Sketcher.Constraint("Vertical", 10, 2, 13, 2))
sketch16.addConstraint(Sketcher.Constraint("Vertical", 15, 2, 16, 2))
sketch16.addConstraint(Sketcher.Constraint("Vertical", 14, 2, 17, 2))
sketch16.addConstraint(Sketcher.Constraint("Equal", 10, 12))
sketch16.addConstraint(Sketcher.Constraint("Equal", 6, 16))
sketch16.addConstraint(Sketcher.Constraint("DistanceY", 0, 1, 0, 2, Q("0.3 in")))
sketch16.addConstraint(Sketcher.Constraint("DistanceY", 4, 1, 4, 2, Q("0.4 in")))
sketch16.addConstraint(Sketcher.Constraint("DistanceY", 8, 1, 8, 2, Q("0.2 in")))
sketch16.addConstraint(Sketcher.Constraint("DistanceY", 14, 2, -1, 1, Q("1 in")))
sketch16.addConstraint(Sketcher.Constraint("DistanceX", 1, 1, 1, 2, Q("0.75 in")))
sketch16.addConstraint(Sketcher.Constraint("DistanceY", 4, 2, -1, 1, Q("1.5 in")))
sketch16.addConstraint(Sketcher.Constraint("DistanceY", -1, 1, 16, 2, Q("2.5 in")))
sketch16.addConstraint(Sketcher.Constraint("DistanceY", 0, 2, 8, 2, Q("0.9 in")))
sketch16.addConstraint(Sketcher.Constraint("DistanceX", 0, 2, -1, 1, Q("2.43 in")))
sketch16.addConstraint(Sketcher.Constraint("DistanceY", 0, 2, -1, 1, Q("2.05 in")))
pad16 = body.newObject("PartDesign::Pad", "Pad015")
pad16.Profile = sketch16
pad16.Length = Q("0.25 in")
pad16.Reversed = True

# Sketch on XZ plane
sketch17 = body.newObject("Sketcher::SketchObject", "Sketch016")
sketch17.AttachmentSupport = (doc.getObject("XZ_Plane"), [""])
sketch17.MapMode = "FlatFace"
sketch17.AttachmentOffset = App.Placement(Vector(0, 0, -0.06 * 25.4), App.Rotation())
add_polygon(sketch17, [(-52.07, -15.113), (-52.07, 10.033), (-43.434, 10.033), (-43.434, -15.113)])  # lines 0-3
sketch17.addConstraint(Sketcher.Constraint("Vertical", 0))
sketch17.addConstraint(Sketcher.Constraint("Horizontal", 1))
sketch17.addConstraint(Sketcher.Constraint("Vertical", 2))
sketch17.addConstraint(Sketcher.Constraint("Horizontal", 3))
sketch17.addConstraint(Sketcher.Constraint("DistanceX", 1, 1, 1, 2, Q("0.34 in")))
sketch17.addConstraint(Sketcher.Constraint("DistanceY", 0, 1, 0, 2, Q("0.99 in")))
sketch17.addConstraint(Sketcher.Constraint("DistanceX", 0, 2, -1, 1, Q("2.05 in")))
sketch17.addConstraint(Sketcher.Constraint("DistanceY", -1, 1, 0, 2, Q("0.395 in")))
pad17 = body.newObject("PartDesign::Pad", "Pad016")
pad17.Profile = sketch17
pad17.Length = Q("0.34 in")
pad17.Reversed = True

doc.recompute()
